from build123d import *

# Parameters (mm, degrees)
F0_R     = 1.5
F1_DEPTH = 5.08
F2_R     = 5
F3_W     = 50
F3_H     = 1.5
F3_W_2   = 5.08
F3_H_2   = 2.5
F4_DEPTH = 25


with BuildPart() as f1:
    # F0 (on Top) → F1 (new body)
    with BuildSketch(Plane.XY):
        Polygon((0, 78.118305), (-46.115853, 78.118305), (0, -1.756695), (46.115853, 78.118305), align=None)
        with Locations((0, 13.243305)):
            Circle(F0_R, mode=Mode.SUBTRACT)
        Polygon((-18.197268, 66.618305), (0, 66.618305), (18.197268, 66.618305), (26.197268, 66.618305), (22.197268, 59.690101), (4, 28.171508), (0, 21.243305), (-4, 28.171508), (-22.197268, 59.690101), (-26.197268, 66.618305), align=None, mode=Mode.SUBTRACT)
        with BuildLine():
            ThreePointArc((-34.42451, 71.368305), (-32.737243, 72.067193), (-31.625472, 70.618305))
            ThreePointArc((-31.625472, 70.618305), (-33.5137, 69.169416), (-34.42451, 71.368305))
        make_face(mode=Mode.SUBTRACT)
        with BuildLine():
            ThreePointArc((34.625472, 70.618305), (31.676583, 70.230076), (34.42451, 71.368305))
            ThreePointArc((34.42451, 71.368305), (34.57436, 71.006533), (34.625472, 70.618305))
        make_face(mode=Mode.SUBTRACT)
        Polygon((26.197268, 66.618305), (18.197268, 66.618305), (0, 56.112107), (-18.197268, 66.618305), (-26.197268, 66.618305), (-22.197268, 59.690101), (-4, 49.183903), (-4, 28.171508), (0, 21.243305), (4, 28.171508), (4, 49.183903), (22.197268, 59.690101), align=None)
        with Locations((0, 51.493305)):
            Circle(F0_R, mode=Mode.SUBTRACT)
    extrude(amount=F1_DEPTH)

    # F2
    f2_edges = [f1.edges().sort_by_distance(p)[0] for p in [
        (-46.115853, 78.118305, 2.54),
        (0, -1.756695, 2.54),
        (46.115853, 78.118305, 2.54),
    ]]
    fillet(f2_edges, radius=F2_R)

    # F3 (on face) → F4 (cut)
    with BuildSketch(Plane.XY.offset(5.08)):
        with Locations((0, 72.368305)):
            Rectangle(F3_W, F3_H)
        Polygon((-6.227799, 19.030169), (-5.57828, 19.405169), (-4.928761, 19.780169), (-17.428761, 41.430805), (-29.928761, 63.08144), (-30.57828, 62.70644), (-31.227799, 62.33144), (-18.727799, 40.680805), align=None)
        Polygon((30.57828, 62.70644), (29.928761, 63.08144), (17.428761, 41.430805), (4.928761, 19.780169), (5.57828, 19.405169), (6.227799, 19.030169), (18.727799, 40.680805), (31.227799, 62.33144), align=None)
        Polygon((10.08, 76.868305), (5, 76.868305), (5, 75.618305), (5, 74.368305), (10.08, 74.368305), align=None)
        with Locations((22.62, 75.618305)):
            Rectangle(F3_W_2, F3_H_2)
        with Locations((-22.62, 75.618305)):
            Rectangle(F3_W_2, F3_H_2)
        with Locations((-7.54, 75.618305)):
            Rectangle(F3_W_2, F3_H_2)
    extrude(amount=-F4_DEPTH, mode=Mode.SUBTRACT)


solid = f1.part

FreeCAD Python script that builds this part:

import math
import FreeCAD as App
import Part
import Sketcher
Q = App.Units.Quantity


def edges_at(feature, points):
    """Names of the edges that pass closest to the given points."""
    edges = feature.Shape.Edges
    near = lambda p: min(range(len(edges)), key=lambda i: edges[i].distToShape(Part.Vertex(*p))[0])
    return sorted({f"Edge{near(p) + 1}" for p in points})

doc = App.newDocument("Part")
params = doc.addObject("Spreadsheet::Sheet", "Params")
for row, (alias, value) in enumerate([
    ("sketch1_diameter", "3 mm"),
    ("sketch1_height", "0.75 mm"),
    ("pad1_length", "5.08 mm"),
    ("fillet_radius", "5 mm"),
    ("sketch2_width", "50 mm"),
    ("sketch2_length", "25.000001 mm"),
    ("sketch2_height", "1.5 mm"),
    ("sketch2_height2", "2.5 mm"),
    ("sketch2_length2", "1.5 mm"),
    ("pocket1_length", "25 mm"),
], start=1):
    params.set(f"A{row}", alias)
    params.set(f"B{row}", "=" + value)
    params.setAlias(f"B{row}", alias)

body = doc.addObject("PartDesign::Body", "Body")

# Sketch on XY plane
sketch1 = body.newObject("Sketcher::SketchObject", "Sketch")
sketch1.AttachmentSupport = (doc.getObject("XY_Plane"), [""])
sketch1.MapMode = "FlatFace"
sketch1.addGeometry(Part.LineSegment(App.Vector(-46.1, 78.1, 0), App.Vector(0, -1.8, 0)), False)
sketch1.addGeometry(Part.LineSegment(App.Vector(0, -1.8, 0), App.Vector(46.1, 78.1, 0)), False)
sketch1.addGeometry(Part.LineSegment(App.Vector(46.1, 78.1, 0), App.Vector(-46.1, 78.1, 0)), False)
sketch1.addGeometry(Part.Circle(App.Vector(0, 13.2, 0), App.Vector(0, 0, 1), 1.5), False)
sketch1.addGeometry(Part.LineSegment(App.Vector(-4, 28.2, 0), App.Vector(-22.2, 59.7, 0)), False)
sketch1.addGeometry(Part.LineSegment(App.Vector(-22.2, 59.7, 0), App.Vector(-4, 49.2, 0)), False)
sketch1.addGeometry(Part.LineSegment(App.Vector(-4, 49.2, 0), App.Vector(-4, 28.2, 0)), False)
sketch1.addGeometry(Part.Circle(App.Vector(0, 51.5, 0), App.Vector(0, 0, 1), 1.5), False)
sketch1.addGeometry(Part.ArcOfCircle(Part.Circle(App.Vector(-33.1, 70.6, 0), App.Vector(0, 0, 1), 1.5), math.radians(150), math.radians(360)), False)
sketch1.addGeometry(Part.ArcOfCircle(Part.Circle(App.Vector(-33.1, 70.6, 0), App.Vector(0, 0, 1), 1.5), math.radians(0), math.radians(150)), False)
sketch1.addGeometry(Part.LineSegment(App.Vector(-18.2, 66.6, 0), App.Vector(18.2, 66.6, 0)), False)
sketch1.addGeometry(Part.LineSegment(App.Vector(18.2, 66.6, 0), App.Vector(0, 56.1, 0)), False)
sketch1.addGeometry(Part.LineSegment(App.Vector(0, 56.1, 0), App.Vector(-18.2, 66.6, 0)), False)
sketch1.addGeometry(Part.LineSegment(App.Vector(22.2, 59.7, 0), App.Vector(4, 28.2, 0)), False)
sketch1.addGeometry(Part.LineSegment(App.Vector(4, 28.2, 0), App.Vector(4, 49.2, 0)), False)
sketch1.addGeometry(Part.LineSegment(App.Vector(4, 49.2, 0), App.Vector(22.2, 59.7, 0)), False)
sketch1.addGeometry(Part.ArcOfCircle(Part.Circle(App.Vector(33.1, 70.6, 0), App.Vector(0, 0, 1), 1.5), math.radians(0), math.radians(30)), False)
sketch1.addGeometry(Part.ArcOfCircle(Part.Circle(App.Vector(33.1, 70.6, 0), App.Vector(0, 0, 1), 1.5), math.radians(30), math.radians(360)), False)
sketch1.addConstraint(Sketcher.Constraint("Coincident", 0, 2, 1, 1))
sketch1.addConstraint(Sketcher.Constraint("Coincident", 1, 2, 2, 1))
sketch1.addConstraint(Sketcher.Constraint("Coincident", 2, 2, 0, 1))
sketch1.addConstraint(Sketcher.Constraint("Coincident", 4, 2, 5, 1))
sketch1.addConstraint(Sketcher.Constraint("Coincident", 5, 2, 6, 1))
sketch1.addConstraint(Sketcher.Constraint("Coincident", 6, 2, 4, 1))
sketch1.addConstraint(Sketcher.Constraint("Tangent", 8, 1, 9, 2))
sketch1.addConstraint(Sketcher.Constraint("Coincident", 9, 1, 8, 2))
sketch1.addConstraint(Sketcher.Constraint("Coincident", 10, 2, 11, 1))
sketch1.addConstraint(Sketcher.Constraint("Coincident", 11, 2, 12, 1))
sketch1.addConstraint(Sketcher.Constraint("Coincident", 12, 2, 10, 1))
sketch1.addConstraint(Sketcher.Constraint("Coincident", 13, 2, 14, 1))
sketch1.addConstraint(Sketcher.Constraint("Coincident", 14, 2, 15, 1))
sketch1.addConstraint(Sketcher.Constraint("Coincident", 15, 2, 13, 1))
sketch1.addConstraint(Sketcher.Constraint("Coincident", 16, 1, 17, 2))
sketch1.addConstraint(Sketcher.Constraint("Coincident", 17, 1, 16, 2))
sketch1.addConstraint(Sketcher.Constraint("Horizontal", 2))
sketch1.addConstraint(Sketcher.Constraint("Vertical", 6))
sketch1.addConstraint(Sketcher.Constraint("Horizontal", 10))
sketch1.addConstraint(Sketcher.Constraint("Vertical", 14))
sketch1.addConstraint(Sketcher.Constraint("Equal", 3, 7))
sketch1.addConstraint(Sketcher.Constraint("Equal", 7, 8))
sketch1.addConstraint(Sketcher.Constraint("Equal", 9, 17))
sketch1.addConstraint(Sketcher.Constraint("Symmetric", 8, 3, 17, 3, -2))
sketch1.addConstraint(Sketcher.Constraint("Symmetric", 6, 2, 13, 2, -2))
sketch1.addConstraint(Sketcher.Constraint("Symmetric", 4, 2, 15, 2, -2))
sketch1.addConstraint(Sketcher.Constraint("PointOnObject", 3, 3, -2))
sketch1.addConstraint(Sketcher.Constraint("PointOnObject", 7, 3, -2))
sketch1.addConstraint(Sketcher.Constraint("PointOnObject", 0, 2, -2))
sketch1.addConstraint(Sketcher.Constraint("PointOnObject", 11, 2, -2))
sketch1.addConstraint(Sketcher.Constraint("Parallel", 0, 4))
sketch1.addConstraint(Sketcher.Constraint("Perpendicular", 1, 5))
sketch1.addConstraint(Sketcher.Constraint("Perpendicular", 4, 11))
sketch1.addConstraint(Sketcher.Constraint("Parallel", 5, 12))
sketch1.addConstraint(Sketcher.Constraint("Perpendicular", 12, 13))
sketch1.addConstraint(Sketcher.Constraint("Parallel", 11, 15))
sketch1.addConstraint(Sketcher.Constraint("Horizontal", 17, 3, 9, 1))
sketch1.addConstraint(Sketcher.Constraint("Horizontal", 9, 1, 16, 1))
sketch1.addConstraint(Sketcher.Constraint("Horizontal", 8, 1, 17, 1))
sketch1.addConstraint(Sketcher.Constraint("Equal", 5, 11))
sketch1.addConstraint(Sketcher.Constraint("Diameter", 3, 3.0))
sketch1.addConstraint(Sketcher.Constraint("Angle", 0, Q("-60 deg")))
sketch1.addConstraint(Sketcher.Constraint("DistanceX", 5, 2, -1, 1, 4.0))
sketch1.addConstraint(Sketcher.Constraint("DistanceY", 0, 2, 3, 3, 15.0))
sketch1.addConstraint(Sketcher.Constraint("DistanceY", 10, 2, 17, 3, 4.0))
sketch1.addConstraint(Sketcher.Constraint("DistanceY", 17, 3, 1, 2, 7.5))
sketch1.addConstraint(Sketcher.Constraint("DistanceY", 3, 3, 7, 3, 38.25))
sketch1.addConstraint(Sketcher.Constraint("DistanceY", 8, 3, 8, 1, 0.75))
sketch1.addConstraint(Sketcher.Constraint("Radius", 16, 1.500023))
sketch1.addConstraint(Sketcher.Constraint("DistanceY", 7, 3, 8, 3, 19.125))
sketch1.addConstraint(Sketcher.Constraint("DistanceY", -1, 1, 16, 3, 70.618299))
sketch1.addConstraint(Sketcher.Constraint("DistanceY", -1, 1, 4, 2, 59.690101))
sketch1.addConstraint(Sketcher.Constraint("DistanceX", 2, 2, 16, 3, 79.241302))
sketch1.addConstraint(Sketcher.Constraint("DistanceY", 5, 2, 7, 3, 2.309402))
sketch1.setExpression("Constraints[40]", "Params.sketch1_diameter")
sketch1.setExpression("Constraints[47]", "Params.sketch1_height")
pad1 = body.newObject("PartDesign::Pad", "Pad")
pad1.Profile = sketch1
pad1.setExpression("Length", "Params.pad1_length")
doc.recompute()

fillet = body.newObject("PartDesign::Fillet", "Fillet")
fillet.Base = (pad1, edges_at(pad1, [(-46.116, 78.118, 2.54), (0, -1.757, 2.54), (46.116, 78.118, 2.54)]))
fillet.setExpression("Radius", "Params.fillet_radius")

# Sketch on XY plane
sketch2 = body.newObject("Sketcher::SketchObject", "Sketch001")
sketch2.AttachmentSupport = (doc.getObject("XY_Plane"), [""])
sketch2.MapMode = "FlatFace"
sketch2.AttachmentOffset = App.Placement(App.Vector(0, 0, 5.08), App.Rotation())
sketch2.addGeometry(Part.LineSegment(App.Vector(-25, 73.1, 0), App.Vector(-25, 71.6, 0)), False)
sketch2.addGeometry(Part.LineSegment(App.Vector(-25, 71.6, 0), App.Vector(25, 71.6, 0)), False)
sketch2.addGeometry(Part.LineSegment(App.Vector(25, 71.6, 0), App.Vector(25, 73.1, 0)), False)
sketch2.addGeometry(Part.LineSegment(App.Vector(25, 73.1, 0), App.Vector(-25, 73.1, 0)), False)
sketch2.addGeometry(Part.LineSegment(App.Vector(-6.2, 19, 0), App.Vector(-4.9, 19.8, 0)), False)
sketch2.addGeometry(Part.LineSegment(App.Vector(-4.9, 19.8, 0), App.Vector(-17.4, 41.4, 0)), False)
sketch2.addGeometry(Part.LineSegment(App.Vector(-17.4, 41.4, 0), App.Vector(-29.9, 63.1, 0)), False)
sketch2.addGeometry(Part.LineSegment(App.Vector(-29.9, 63.1, 0), App.Vector(-31.2, 62.3, 0)), False)
sketch2.addGeometry(Part.LineSegment(App.Vector(-31.2, 62.3, 0), App.Vector(-18.7, 40.7, 0)), False)
sketch2.addGeometry(Part.LineSegment(App.Vector(-18.7, 40.7, 0), App.Vector(-6.2, 19, 0)), False)
sketch2.addGeometry(Part.LineSegment(App.Vector(29.9, 63.1, 0), App.Vector(17.4, 41.4, 0)), False)
sketch2.addGeometry(Part.LineSegment(App.Vector(17.4, 41.4, 0), App.Vector(4.9, 19.8, 0)), False)
sketch2.addGeometry(Part.LineSegment(App.Vector(4.9, 19.8, 0), App.Vector(6.2, 19, 0)), False)
sketch2.addGeometry(Part.LineSegment(App.Vector(6.2, 19, 0), App.Vector(18.7, 40.7, 0)), False)
sketch2.addGeometry(Part.LineSegment(App.Vector(18.7, 40.7, 0), App.Vector(31.2, 62.3, 0)), False)
sketch2.addGeometry(Part.LineSegment(App.Vector(31.2, 62.3, 0), App.Vector(29.9, 63.1, 0)), False)
sketch2.addGeometry(Part.LineSegment(App.Vector(10.1, 76.9, 0), App.Vector(5, 76.9, 0)), False)
sketch2.addGeometry(Part.LineSegment(App.Vector(5, 76.9, 0), App.Vector(5, 74.4, 0)), False)
sketch2.addGeometry(Part.LineSegment(App.Vector(5, 74.4, 0), App.Vector(10.1, 74.4, 0)), False)
sketch2.addGeometry(Part.LineSegment(App.Vector(10.1, 74.4, 0), App.Vector(10.1, 76.9, 0)), False)
sketch2.addGeometry(Part.LineSegment(App.Vector(20.1, 76.9, 0), App.Vector(20.1, 74.4, 0)), False)
sketch2.addGeometry(Part.LineSegment(App.Vector(20.1, 74.4, 0), App.Vector(25.2, 74.4, 0)), False)
sketch2.addGeometry(Part.LineSegment(App.Vector(25.2, 74.4, 0), App.Vector(25.2, 76.9, 0)), False)
sketch2.addGeometry(Part.LineSegment(App.Vector(25.2, 76.9, 0), App.Vector(20.1, 76.9, 0)), False)
sketch2.addGeometry(Part.LineSegment(App.Vector(-25.2, 76.9, 0), App.Vector(-25.2, 74.4, 0)), False)
sketch2.addGeometry(Part.LineSegment(App.Vector(-25.2, 74.4, 0), App.Vector(-20.1, 74.4, 0)), False)
sketch2.addGeometry(Part.LineSegment(App.Vector(-20.1, 74.4, 0), App.Vector(-20.1, 76.9, 0)), False)
sketch2.addGeometry(Part.LineSegment(App.Vector(-20.1, 76.9, 0), App.Vector(-25.2, 76.9, 0)), False)
sketch2.addGeometry(Part.LineSegment(App.Vector(-10.1, 76.9, 0), App.Vector(-10.1, 74.4, 0)), False)
sketch2.addGeometry(Part.LineSegment(App.Vector(-10.1, 74.4, 0), App.Vector(-5, 74.4, 0)), False)
sketch2.addGeometry(Part.LineSegment(App.Vector(-5, 74.4, 0), App.Vector(-5, 76.9, 0)), False)
sketch2.addGeometry(Part.LineSegment(App.Vector(-5, 76.9, 0), App.Vector(-10.1, 76.9, 0)), False)
sketch2.addConstraint(Sketcher.Constraint("Coincident", 0, 2, 1, 1))
sketch2.addConstraint(Sketcher.Constraint("Coincident", 1, 2, 2, 1))
sketch2.addConstraint(Sketcher.Constraint("Coincident", 2, 2, 3, 1))
sketch2.addConstraint(Sketcher.Constraint("Coincident", 3, 2, 0, 1))
sketch2.addConstraint(Sketcher.Constraint("Coincident", 4, 2, 5, 1))
sketch2.addConstraint(Sketcher.Constraint("Coincident", 5, 2, 6, 1))
sketch2.addConstraint(Sketcher.Constraint("Coincident", 6, 2, 7, 1))
sketch2.addConstraint(Sketcher.Constraint("Coincident", 7, 2, 8, 1))
sketch2.addConstraint(Sketcher.Constraint("Coincident", 8, 2, 9, 1))
sketch2.addConstraint(Sketcher.Constraint("Coincident", 9, 2, 4, 1))
sketch2.addConstraint(Sketcher.Constraint("Coincident", 10, 2, 11, 1))
sketch2.addConstraint(Sketcher.Constraint("Coincident", 11, 2, 12, 1))
sketch2.addConstraint(Sketcher.Constraint("Coincident", 12, 2, 13, 1))
sketch2.addConstraint(Sketcher.Constraint("Coincident", 13, 2, 14, 1))
sketch2.addConstraint(Sketcher.Constraint("Coincident", 14, 2, 15, 1))
sketch2.addConstraint(Sketcher.Constraint("Coincident", 15, 2, 10, 1))
sketch2.addConstraint(Sketcher.Constraint("Coincident", 16, 2, 17, 1))
sketch2.addConstraint(Sketcher.Constraint("Coincident", 17, 2, 18, 1))
sketch2.addConstraint(Sketcher.Constraint("Coincident", 18, 2, 19, 1))
sketch2.addConstraint(Sketcher.Constraint("Coincident", 19, 2, 16, 1))
sketch2.addConstraint(Sketcher.Constraint("Coincident", 20, 2, 21, 1))
sketch2.addConstraint(Sketcher.Constraint("Coincident", 21, 2, 22, 1))
sketch2.addConstraint(Sketcher.Constraint("Coincident", 22, 2, 23, 1))
sketch2.addConstraint(Sketcher.Constraint("Coincident", 23, 2, 20, 1))
sketch2.addConstraint(Sketcher.Constraint("Coincident", 24, 2, 25, 1))
sketch2.addConstraint(Sketcher.Constraint("Coincident", 25, 2, 26, 1))
sketch2.addConstraint(Sketcher.Constraint("Coincident", 26, 2, 27, 1))
sketch2.addConstraint(Sketcher.Constraint("Coincident", 27, 2, 24, 1))
sketch2.addConstraint(Sketcher.Constraint("Coincident", 28, 2, 29, 1))
sketch2.addConstraint(Sketcher.Constraint("Coincident", 29, 2, 30, 1))
sketch2.addConstraint(Sketcher.Constraint("Coincident", 30, 2, 31, 1))
sketch2.addConstraint(Sketcher.Constraint("Coincident", 31, 2, 28, 1))
sketch2.addConstraint(Sketcher.Constraint("Vertical", 0))
sketch2.addConstraint(Sketcher.Constraint("Horizontal", 1))
sketch2.addConstraint(Sketcher.Constraint("Vertical", 2))
sketch2.addConstraint(Sketcher.Constraint("Horizontal", 3))
sketch2.addConstraint(Sketcher.Constraint("Horizontal", 16))
sketch2.addConstraint(Sketcher.Constraint("Vertical", 17))
sketch2.addConstraint(Sketcher.Constraint("Horizontal", 18))
sketch2.addConstraint(Sketcher.Constraint("Vertical", 19))
sketch2.addConstraint(Sketcher.Constraint("Vertical", 20))
sketch2.addConstraint(Sketcher.Constraint("Horizontal", 21))
sketch2.addConstraint(Sketcher.Constraint("Vertical", 22))
sketch2.addConstraint(Sketcher.Constraint("Horizontal", 23))
sketch2.addConstraint(Sketcher.Constraint("Vertical", 24))
sketch2.addConstraint(Sketcher.Constraint("Horizontal", 25))
sketch2.addConstraint(Sketcher.Constraint("Vertical", 26))
sketch2.addConstraint(Sketcher.Constraint("Horizontal", 27))
sketch2.addConstraint(Sketcher.Constraint("Vertical", 28))
sketch2.addConstraint(Sketcher.Constraint("Horizontal", 29))
sketch2.addConstraint(Sketcher.Constraint("Vertical", 30))
sketch2.addConstraint(Sketcher.Constraint("Horizontal", 31))
sketch2.addConstraint(Sketcher.Constraint("Symmetric", 5, 2, 10, 2, -2))
sketch2.addConstraint(Sketcher.Constraint("Symmetric", 4, 2, 11, 2, -2))
sketch2.addConstraint(Sketcher.Constraint("Symmetric", 9, 2, 12, 2, -2))
sketch2.addConstraint(Sketcher.Constraint("Symmetric", 8, 2, 13, 2, -2))
sketch2.addConstraint(Sketcher.Constraint("Symmetric", 7, 2, 14, 2, -2))
sketch2.addConstraint(Sketcher.Constraint("Symmetric", 6, 2, 15, 2, -2))
sketch2.addConstraint(Sketcher.Constraint("Symmetric", 21, 2, 24, 2, -2))
sketch2.addConstraint(Sketcher.Constraint("Symmetric", 23, 2, 26, 2, -2))
sketch2.addConstraint(Sketcher.Constraint("Symmetric", 18, 2, 28, 2, -2))
sketch2.addConstraint(Sketcher.Constraint("Symmetric", 16, 2, 30, 2, -2))
sketch2.addConstraint(Sketcher.Constraint("Perpendicular", 4, 5))
sketch2.addConstraint(Sketcher.Constraint("Parallel", 5, 6))
sketch2.addConstraint(Sketcher.Constraint("Perpendicular", 6, 7))
sketch2.addConstraint(Sketcher.Constraint("Perpendicular", 7, 8))
sketch2.addConstraint(Sketcher.Constraint("Parallel", 8, 9))
sketch2.addConstraint(Sketcher.Constraint("Horizontal", 18, 2, 20, 2))
sketch2.addConstraint(Sketcher.Constraint("Horizontal", 19, 2, 22, 2))
sketch2.addConstraint(Sketcher.Constraint("Equal", 18, 21))
sketch2.addConstraint(Sketcher.Constraint("Equal", 5, 6))
sketch2.addConstraint(Sketcher.Constraint("Equal", 6, 8))
sketch2.addConstraint(Sketcher.Constraint("DistanceX", 1, 1, 1, 2, 50.0))
sketch2.addConstraint(Sketcher.Constraint("Angle", 4, Q("30.000002 deg")))
sketch2.addConstraint(Sketcher.Constraint("Distance", 5, 25.000001))
sketch2.addConstraint(Sketcher.Constraint("DistanceY", 0, 2, 0, 1, 1.5))
sketch2.addConstraint(Sketcher.Constraint("DistanceY", 17, 2, 17, 1, 2.5))
sketch2.addConstraint(Sketcher.Constraint("DistanceX", 0, 2, -1, 1, 25.0))
sketch2.addConstraint(Sketcher.Constraint("DistanceX", -1, 1, 16, 2, 5.0))
sketch2.addConstraint(Sketcher.Constraint("DistanceX", 18, 2, 20, 2, 10.0))
sketch2.addConstraint(Sketcher.Constraint("Distance", 4, 1.5))
sketch2.addConstraint(Sketcher.Constraint("DistanceX", 16, 2, 16, 1, 5.08))
sketch2.addConstraint(Sketcher.Constraint("DistanceY", 2, 2, 16, 2, 3.75))
sketch2.addConstraint(Sketcher.Constraint("DistanceX", 7, 2, -1, 1, 31.227799))
sketch2.addConstraint(Sketcher.Constraint("DistanceY", 5, 2, 0, 2, 30.1875))
sketch2.addConstraint(Sketcher.Constraint("DistanceY", -1, 1, 4, 2, 19.780169))
sketch2.setExpression("Constraints[72]", "Params.sketch2_width")
sketch2.setExpression("Constraints[74]", "Params.sketch2_length")
sketch2.setExpression("Constraints[75]", "Params.sketch2_height")
sketch2.setExpression("Constraints[76]", "Params.sketch2_height2")
sketch2.setExpression("Constraints[80]", "Params.sketch2_length2")
pocket1 = body.newObject("PartDesign::Pocket", "Pocket")
pocket1.Profile = sketch2
pocket1.setExpression("Length", "Params.pocket1_length")

doc.recompute()
